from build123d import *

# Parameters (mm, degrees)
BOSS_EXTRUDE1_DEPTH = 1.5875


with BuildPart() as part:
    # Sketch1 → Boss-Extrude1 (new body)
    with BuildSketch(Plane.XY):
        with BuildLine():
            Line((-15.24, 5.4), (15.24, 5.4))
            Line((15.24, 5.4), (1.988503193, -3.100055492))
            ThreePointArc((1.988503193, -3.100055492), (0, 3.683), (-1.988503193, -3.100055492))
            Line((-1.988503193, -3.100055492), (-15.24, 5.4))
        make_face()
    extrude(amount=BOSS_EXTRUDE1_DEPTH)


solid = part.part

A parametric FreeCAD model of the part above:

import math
import FreeCAD as App
import Part
import Sketcher
from FreeCAD import Vector
Q = App.Units.Quantity

doc = App.newDocument("Part")
body = doc.addObject("PartDesign::Body", "Body")

# Sketch on XY plane
sketch1 = body.newObject("Sketcher::SketchObject", "Sketch")
sketch1.AttachmentSupport = (doc.getObject("XY_Plane"), [""])
sketch1.MapMode = "FlatFace"
sketch1.addGeometry([
    Part.LineSegment(Vector(15.24, 5.4, 0), Vector(-15.24, 5.4, 0)),
    Part.LineSegment(Vector(-15.24, 5.4, 0), Vector(-1.988503, -3.100055, 0)),
    Part.ArcOfCircle(Part.Circle(Vector(0, 0, 0), Vector(0, 0, 1), 3.683), math.radians(-57.322217), math.radians(237.322217)),
    Part.LineSegment(Vector(1.988503, -3.100055, 0), Vector(15.24, 5.4, 0)),
], False)
sketch1.addConstraint([
    Sketcher.Constraint("Coincident", 0, 2, 1, 1),
    Sketcher.Constraint("Tangent", 1, 2, 2, 2),
    Sketcher.Constraint("Tangent", 2, 1, 3, 1),
    Sketcher.Constraint("Coincident", 3, 2, 0, 1),
    Sketcher.Constraint("Horizontal", 0),
    Sketcher.Constraint("Coincident", 2, 3, -1, 1),
    Sketcher.Constraint("Horizontal", 1, 2, 2, 1),
    Sketcher.Constraint("DistanceX", 0, 2, 0, 1, Q("1.2 in")),
    Sketcher.Constraint("Radius", 2, Q("0.145 in")),
    Sketcher.Constraint("DistanceY", -1, 1, 0, 2, 5.4),
])
pad1 = body.newObject("PartDesign::Pad", "Pad")
pad1.Profile = sketch1
pad1.Length = Q("0.0625 in")

doc.recompute()
